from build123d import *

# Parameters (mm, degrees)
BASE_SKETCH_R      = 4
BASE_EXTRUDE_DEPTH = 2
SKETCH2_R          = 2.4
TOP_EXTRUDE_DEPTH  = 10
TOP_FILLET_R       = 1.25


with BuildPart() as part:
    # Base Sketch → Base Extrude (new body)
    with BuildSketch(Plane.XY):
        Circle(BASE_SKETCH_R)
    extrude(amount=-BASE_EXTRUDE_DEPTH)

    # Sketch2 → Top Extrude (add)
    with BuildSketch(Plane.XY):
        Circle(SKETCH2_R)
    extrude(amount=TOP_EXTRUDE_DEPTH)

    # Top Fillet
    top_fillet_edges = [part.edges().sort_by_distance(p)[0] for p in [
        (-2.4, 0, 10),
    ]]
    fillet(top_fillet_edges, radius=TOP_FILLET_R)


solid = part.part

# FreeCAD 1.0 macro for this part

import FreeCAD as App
import Part
import Sketcher

V = App.Vector


def edges_at(feature, points):
    """Names of the edges that pass closest to the given points."""
    edges = feature.Shape.Edges
    near = lambda p: min(range(len(edges)), key=lambda i: edges[i].distToShape(Part.Vertex(*p))[0])
    return sorted({f"Edge{near(p) + 1}" for p in points})

doc = App.newDocument("Part")
body = doc.addObject("PartDesign::Body", "Body")

sketch1 = body.newObject("Sketcher::SketchObject", "Sketch")
sketch1.AttachmentSupport = (doc.getObject("XY_Plane"), [""])
sketch1.MapMode = "FlatFace"
sketch1.addGeometry(Part.Circle(V(0, 0, 0), V(0, 0, 1), 4), False)
sketch1.addConstraint([
    Sketcher.Constraint("Coincident", 0, 3, -1, 1),
    Sketcher.Constraint("Diameter", 0, 8.0),
])
pad1 = body.newObject("PartDesign::Pad", "Pad")
pad1.Profile = sketch1
pad1.Length = 2
pad1.Reversed = True

sketch2 = body.newObject("Sketcher::SketchObject", "Sketch001")
sketch2.AttachmentSupport = (doc.getObject("XY_Plane"), [""])
sketch2.MapMode = "FlatFace"
sketch2.addGeometry(Part.Circle(V(0, 0, 0), V(0, 0, 1), 2.4), False)
sketch2.addConstraint([
    Sketcher.Constraint("Coincident", 0, 3, -1, 1),
    Sketcher.Constraint("Diameter", 0, 4.8),
])
pad2 = body.newObject("PartDesign::Pad", "Pad001")
pad2.Profile = sketch2
pad2.Length = 10
doc.recompute()

fillet = body.newObject("PartDesign::Fillet", "Fillet")
fillet.Base = (pad2, edges_at(pad2, [(-2.4, 0, 10)]))
fillet.Radius = 1.25

doc.recompute()
